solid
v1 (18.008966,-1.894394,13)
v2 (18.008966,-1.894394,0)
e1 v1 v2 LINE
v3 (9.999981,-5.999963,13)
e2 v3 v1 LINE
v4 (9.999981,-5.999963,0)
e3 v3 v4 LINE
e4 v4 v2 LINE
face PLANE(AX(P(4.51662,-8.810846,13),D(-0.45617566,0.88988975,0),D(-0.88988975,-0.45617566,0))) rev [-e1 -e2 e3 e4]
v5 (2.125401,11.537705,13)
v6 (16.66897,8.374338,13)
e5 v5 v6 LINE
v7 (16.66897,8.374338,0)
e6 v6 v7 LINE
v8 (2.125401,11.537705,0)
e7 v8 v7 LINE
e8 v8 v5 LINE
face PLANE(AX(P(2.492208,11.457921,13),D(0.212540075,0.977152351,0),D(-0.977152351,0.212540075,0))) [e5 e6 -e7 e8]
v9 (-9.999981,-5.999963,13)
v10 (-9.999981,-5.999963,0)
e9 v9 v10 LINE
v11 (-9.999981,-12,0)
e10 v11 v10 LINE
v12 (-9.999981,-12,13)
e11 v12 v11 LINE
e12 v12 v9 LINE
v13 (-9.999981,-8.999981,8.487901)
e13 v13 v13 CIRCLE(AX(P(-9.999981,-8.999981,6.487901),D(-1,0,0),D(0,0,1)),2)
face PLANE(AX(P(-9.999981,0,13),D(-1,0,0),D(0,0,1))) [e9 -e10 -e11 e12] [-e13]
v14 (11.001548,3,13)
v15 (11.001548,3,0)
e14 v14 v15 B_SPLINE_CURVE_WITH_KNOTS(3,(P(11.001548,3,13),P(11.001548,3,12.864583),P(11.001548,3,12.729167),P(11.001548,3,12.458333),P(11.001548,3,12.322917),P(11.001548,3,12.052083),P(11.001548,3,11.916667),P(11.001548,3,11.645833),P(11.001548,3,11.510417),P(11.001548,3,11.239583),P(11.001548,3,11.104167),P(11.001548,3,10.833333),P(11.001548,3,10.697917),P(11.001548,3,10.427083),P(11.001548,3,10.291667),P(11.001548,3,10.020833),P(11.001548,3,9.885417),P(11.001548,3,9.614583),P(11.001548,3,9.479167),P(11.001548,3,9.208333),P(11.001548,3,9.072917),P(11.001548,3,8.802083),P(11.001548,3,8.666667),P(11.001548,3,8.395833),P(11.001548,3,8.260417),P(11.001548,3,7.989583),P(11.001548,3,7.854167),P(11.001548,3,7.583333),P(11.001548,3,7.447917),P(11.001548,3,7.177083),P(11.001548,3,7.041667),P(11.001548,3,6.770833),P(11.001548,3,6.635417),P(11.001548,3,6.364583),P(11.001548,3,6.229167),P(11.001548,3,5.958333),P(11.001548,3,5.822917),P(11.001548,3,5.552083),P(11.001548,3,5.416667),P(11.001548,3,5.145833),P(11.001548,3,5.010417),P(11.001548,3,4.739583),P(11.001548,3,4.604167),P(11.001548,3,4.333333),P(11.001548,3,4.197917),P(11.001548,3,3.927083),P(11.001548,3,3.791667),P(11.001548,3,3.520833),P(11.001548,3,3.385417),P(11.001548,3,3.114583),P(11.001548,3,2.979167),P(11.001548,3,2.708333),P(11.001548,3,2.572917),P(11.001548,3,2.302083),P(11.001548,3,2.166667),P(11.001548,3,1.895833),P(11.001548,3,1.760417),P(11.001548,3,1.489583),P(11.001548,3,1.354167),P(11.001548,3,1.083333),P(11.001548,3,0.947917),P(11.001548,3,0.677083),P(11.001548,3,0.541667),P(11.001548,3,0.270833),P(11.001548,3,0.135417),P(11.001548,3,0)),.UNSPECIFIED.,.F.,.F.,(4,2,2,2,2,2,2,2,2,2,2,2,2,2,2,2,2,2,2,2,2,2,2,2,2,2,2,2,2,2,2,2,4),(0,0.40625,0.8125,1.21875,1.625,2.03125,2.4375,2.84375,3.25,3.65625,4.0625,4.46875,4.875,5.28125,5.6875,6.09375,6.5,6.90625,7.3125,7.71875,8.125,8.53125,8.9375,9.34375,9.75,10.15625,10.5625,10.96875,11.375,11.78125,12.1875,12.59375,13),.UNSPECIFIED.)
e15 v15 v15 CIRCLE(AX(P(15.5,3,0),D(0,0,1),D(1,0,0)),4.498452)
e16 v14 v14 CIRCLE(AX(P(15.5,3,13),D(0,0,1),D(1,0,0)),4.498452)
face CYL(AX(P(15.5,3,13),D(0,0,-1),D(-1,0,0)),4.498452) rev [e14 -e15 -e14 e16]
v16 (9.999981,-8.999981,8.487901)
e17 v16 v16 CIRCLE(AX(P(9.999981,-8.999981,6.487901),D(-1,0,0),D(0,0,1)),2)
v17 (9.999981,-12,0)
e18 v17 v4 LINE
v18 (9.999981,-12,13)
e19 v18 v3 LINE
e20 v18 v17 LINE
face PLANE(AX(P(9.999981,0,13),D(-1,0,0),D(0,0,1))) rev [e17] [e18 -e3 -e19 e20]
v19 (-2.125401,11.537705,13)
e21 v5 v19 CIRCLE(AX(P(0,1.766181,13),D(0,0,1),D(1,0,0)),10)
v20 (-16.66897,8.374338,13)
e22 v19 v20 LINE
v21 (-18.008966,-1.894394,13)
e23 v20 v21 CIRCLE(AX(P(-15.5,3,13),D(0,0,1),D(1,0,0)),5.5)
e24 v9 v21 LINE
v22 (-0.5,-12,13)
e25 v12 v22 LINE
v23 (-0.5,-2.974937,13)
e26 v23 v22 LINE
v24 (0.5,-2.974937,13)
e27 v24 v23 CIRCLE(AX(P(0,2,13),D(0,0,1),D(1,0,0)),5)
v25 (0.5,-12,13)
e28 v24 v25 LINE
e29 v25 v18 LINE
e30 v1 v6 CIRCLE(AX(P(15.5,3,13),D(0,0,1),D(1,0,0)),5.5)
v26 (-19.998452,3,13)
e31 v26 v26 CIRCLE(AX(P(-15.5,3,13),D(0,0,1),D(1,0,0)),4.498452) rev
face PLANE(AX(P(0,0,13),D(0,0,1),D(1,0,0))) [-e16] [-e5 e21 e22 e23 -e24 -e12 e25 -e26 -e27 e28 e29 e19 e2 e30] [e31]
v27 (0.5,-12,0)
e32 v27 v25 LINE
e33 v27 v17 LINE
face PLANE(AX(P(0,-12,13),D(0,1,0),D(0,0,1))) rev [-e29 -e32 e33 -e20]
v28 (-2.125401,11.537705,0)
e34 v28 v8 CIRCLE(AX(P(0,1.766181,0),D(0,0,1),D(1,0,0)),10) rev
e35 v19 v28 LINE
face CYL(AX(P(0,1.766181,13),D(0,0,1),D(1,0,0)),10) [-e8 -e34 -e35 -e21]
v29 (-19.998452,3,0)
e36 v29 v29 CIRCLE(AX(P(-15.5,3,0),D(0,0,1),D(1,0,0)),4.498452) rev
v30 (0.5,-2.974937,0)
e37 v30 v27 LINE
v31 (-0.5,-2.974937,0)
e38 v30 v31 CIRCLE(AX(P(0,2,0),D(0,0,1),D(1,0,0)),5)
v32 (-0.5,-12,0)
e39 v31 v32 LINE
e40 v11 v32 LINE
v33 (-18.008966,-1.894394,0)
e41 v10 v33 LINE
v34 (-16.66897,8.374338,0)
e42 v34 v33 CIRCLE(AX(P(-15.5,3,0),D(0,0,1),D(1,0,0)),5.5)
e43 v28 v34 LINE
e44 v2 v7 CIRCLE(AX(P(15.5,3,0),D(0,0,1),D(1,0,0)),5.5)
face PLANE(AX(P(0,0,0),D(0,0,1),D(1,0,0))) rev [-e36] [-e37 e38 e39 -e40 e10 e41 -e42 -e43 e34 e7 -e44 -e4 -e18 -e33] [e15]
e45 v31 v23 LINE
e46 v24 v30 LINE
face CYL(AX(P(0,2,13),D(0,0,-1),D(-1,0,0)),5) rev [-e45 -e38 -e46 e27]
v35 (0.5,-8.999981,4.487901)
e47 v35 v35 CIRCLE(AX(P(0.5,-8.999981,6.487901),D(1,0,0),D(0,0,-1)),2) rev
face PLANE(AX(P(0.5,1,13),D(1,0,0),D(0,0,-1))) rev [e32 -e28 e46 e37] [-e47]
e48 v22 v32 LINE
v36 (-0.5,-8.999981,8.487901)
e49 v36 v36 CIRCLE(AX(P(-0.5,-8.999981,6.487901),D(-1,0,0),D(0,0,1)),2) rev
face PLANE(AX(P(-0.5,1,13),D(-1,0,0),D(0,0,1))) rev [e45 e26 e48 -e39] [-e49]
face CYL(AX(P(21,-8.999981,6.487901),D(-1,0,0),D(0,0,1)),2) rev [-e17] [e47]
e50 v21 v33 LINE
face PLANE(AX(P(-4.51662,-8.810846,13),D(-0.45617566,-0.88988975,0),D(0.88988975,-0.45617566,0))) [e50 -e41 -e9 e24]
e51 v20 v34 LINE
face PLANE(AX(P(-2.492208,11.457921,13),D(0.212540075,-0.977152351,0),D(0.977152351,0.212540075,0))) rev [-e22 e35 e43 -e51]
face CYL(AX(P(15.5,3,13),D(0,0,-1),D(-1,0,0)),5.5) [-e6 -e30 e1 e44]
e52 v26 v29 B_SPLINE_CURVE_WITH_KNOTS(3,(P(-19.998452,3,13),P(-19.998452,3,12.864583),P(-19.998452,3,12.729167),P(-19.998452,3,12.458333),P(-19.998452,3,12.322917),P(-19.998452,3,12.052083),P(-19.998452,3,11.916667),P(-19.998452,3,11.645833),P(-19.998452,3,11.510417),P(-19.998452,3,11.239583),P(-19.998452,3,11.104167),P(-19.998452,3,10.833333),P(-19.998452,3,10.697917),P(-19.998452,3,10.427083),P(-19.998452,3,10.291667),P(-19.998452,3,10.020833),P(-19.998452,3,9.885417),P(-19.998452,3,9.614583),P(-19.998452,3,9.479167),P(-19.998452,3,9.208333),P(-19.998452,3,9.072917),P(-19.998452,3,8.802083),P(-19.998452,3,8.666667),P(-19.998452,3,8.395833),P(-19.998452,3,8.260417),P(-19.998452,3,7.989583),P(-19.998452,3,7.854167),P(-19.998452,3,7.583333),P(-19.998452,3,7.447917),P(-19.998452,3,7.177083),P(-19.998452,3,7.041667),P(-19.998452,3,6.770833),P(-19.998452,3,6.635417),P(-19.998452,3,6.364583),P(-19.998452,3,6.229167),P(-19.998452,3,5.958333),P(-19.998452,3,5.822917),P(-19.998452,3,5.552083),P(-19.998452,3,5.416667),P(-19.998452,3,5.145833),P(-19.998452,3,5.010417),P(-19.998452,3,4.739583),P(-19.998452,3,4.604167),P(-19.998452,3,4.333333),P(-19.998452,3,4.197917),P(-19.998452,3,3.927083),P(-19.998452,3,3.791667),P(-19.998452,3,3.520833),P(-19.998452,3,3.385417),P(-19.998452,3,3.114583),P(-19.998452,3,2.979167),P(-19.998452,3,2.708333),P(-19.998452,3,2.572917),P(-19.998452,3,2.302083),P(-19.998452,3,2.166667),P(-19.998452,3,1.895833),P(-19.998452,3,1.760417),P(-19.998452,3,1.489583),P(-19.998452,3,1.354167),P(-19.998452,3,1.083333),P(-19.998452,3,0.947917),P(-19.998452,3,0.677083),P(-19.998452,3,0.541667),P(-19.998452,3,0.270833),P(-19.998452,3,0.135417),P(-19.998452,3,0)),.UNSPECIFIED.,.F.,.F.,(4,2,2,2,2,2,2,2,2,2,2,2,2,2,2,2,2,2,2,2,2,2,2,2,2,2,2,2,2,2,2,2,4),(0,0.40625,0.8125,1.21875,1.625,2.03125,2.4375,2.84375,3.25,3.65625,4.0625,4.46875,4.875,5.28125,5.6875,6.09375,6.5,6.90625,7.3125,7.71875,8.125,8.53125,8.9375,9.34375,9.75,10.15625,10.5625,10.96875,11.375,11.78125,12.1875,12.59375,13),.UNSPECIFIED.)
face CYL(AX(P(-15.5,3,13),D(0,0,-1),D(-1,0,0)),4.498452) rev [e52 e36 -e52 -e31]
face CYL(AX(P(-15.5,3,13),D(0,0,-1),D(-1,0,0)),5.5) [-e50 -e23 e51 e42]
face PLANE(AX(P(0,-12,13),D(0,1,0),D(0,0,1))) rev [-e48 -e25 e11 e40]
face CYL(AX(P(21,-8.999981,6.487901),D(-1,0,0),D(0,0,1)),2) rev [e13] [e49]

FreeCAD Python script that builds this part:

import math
import FreeCAD as App
import Part
import Sketcher
Q = App.Units.Quantity


def edges_at(feature, points):
    """Names of the edges that pass closest to the given points."""
    edges = feature.Shape.Edges
    near = lambda p: min(range(len(edges)), key=lambda i: edges[i].distToShape(Part.Vertex(*p))[0])
    return sorted({f"Edge{near(p) + 1}" for p in points})


def add_polygon(sketch, points):
    """Adds a closed chain of lines whose ends are joined by coincident constraints."""
    first, n = sketch.GeometryCount, len(points)
    for a, b in zip(points, points[1:] + points[:1]):
        sketch.addGeometry(Part.LineSegment(App.Vector(*a, 0), App.Vector(*b, 0)), False)
    for i in range(n):
        sketch.addConstraint(Sketcher.Constraint("Coincident", first + i, 2, first + (i + 1) % n, 1))

doc = App.newDocument("Part")
body = doc.addObject("PartDesign::Body", "Body")

# Sketch on XY plane
sketch1 = body.newObject("Sketcher::SketchObject", "Sketch")
sketch1.AttachmentSupport = (doc.getObject("XY_Plane"), [""])
sketch1.MapMode = "FlatFace"
sketch1.addGeometry([
    Part.LineSegment(App.Vector(10, -6, 0), App.Vector(18, -1.9, 0)),  # 0
    Part.ArcOfCircle(Part.Circle(App.Vector(15.5, 3, 0), App.Vector(0, 0, 1), 5.5), math.radians(-62.86), math.radians(-45)),  # 1
    Part.ArcOfCircle(Part.Circle(App.Vector(15.5, 3, 0), App.Vector(0, 0, 1), 5.5), math.radians(-45), math.radians(0)),  # 2
    Part.ArcOfCircle(Part.Circle(App.Vector(15.5, 3, 0), App.Vector(0, 0, 1), 5.5), math.radians(0), math.radians(45)),  # 3
    Part.ArcOfCircle(Part.Circle(App.Vector(15.5, 3, 0), App.Vector(0, 0, 1), 5.5), math.radians(45), math.radians(78)),  # 4
    Part.LineSegment(App.Vector(16.7, 8.4, 0), App.Vector(0, 12, 0)),  # 5
    Part.LineSegment(App.Vector(0, 12, 0), App.Vector(-16.7, 8.4, 0)),  # 6
    Part.ArcOfCircle(Part.Circle(App.Vector(-15.5, 3, 0), App.Vector(0, 0, 1), 5.5), math.radians(102), math.radians(135)),  # 7
    Part.ArcOfCircle(Part.Circle(App.Vector(-15.5, 3, 0), App.Vector(0, 0, 1), 5.5), math.radians(135), math.radians(180)),  # 8
    Part.ArcOfCircle(Part.Circle(App.Vector(-15.5, 3, 0), App.Vector(0, 0, 1), 5.5), math.radians(180), math.radians(225)),  # 9
    Part.ArcOfCircle(Part.Circle(App.Vector(-15.5, 3, 0), App.Vector(0, 0, 1), 5.5), math.radians(-135), math.radians(-117.14)),  # 10
    Part.LineSegment(App.Vector(-18, -1.9, 0), App.Vector(-10, -6, 0)),  # 11
    Part.LineSegment(App.Vector(-10, -6, 0), App.Vector(-10, -12, 0)),  # 12
    Part.LineSegment(App.Vector(-10, -12, 0), App.Vector(10, -12, 0)),  # 13
    Part.LineSegment(App.Vector(10, -12, 0), App.Vector(10, -6, 0)),  # 14
    Part.Circle(App.Vector(0, 2, 0), App.Vector(0, 0, 1), 5),  # 15
    Part.ArcOfCircle(Part.Circle(App.Vector(15.5, 3, 0), App.Vector(0, 0, 1), 4.5), math.radians(45), math.radians(315)),  # 16
    Part.ArcOfCircle(Part.Circle(App.Vector(15.5, 3, 0), App.Vector(0, 0, 1), 4.5), math.radians(0), math.radians(45)),  # 17
    Part.ArcOfCircle(Part.Circle(App.Vector(15.5, 3, 0), App.Vector(0, 0, 1), 4.5), math.radians(-45), math.radians(0)),  # 18
    Part.ArcOfCircle(Part.Circle(App.Vector(-15.5, 3, 0), App.Vector(0, 0, 1), 4.5), math.radians(0), math.radians(135)),  # 19
    Part.ArcOfCircle(Part.Circle(App.Vector(-15.5, 3, 0), App.Vector(0, 0, 1), 4.5), math.radians(-135), math.radians(0)),  # 20
    Part.ArcOfCircle(Part.Circle(App.Vector(-15.5, 3, 0), App.Vector(0, 0, 1), 4.5), math.radians(135), math.radians(225)),  # 21
], False)
sketch1.addConstraint([
    Sketcher.Constraint("Tangent", 0, 2, 1, 1),
    Sketcher.Constraint("Tangent", 1, 2, 2, 1),
    Sketcher.Constraint("Tangent", 2, 2, 3, 1),
    Sketcher.Constraint("Tangent", 3, 2, 4, 1),
    Sketcher.Constraint("Tangent", 4, 2, 5, 1),
    Sketcher.Constraint("Coincident", 5, 2, 6, 1),
    Sketcher.Constraint("Tangent", 6, 2, 7, 1),
    Sketcher.Constraint("Tangent", 7, 2, 8, 1),
    Sketcher.Constraint("Tangent", 8, 2, 9, 1),
    Sketcher.Constraint("Tangent", 9, 2, 10, 1),
    Sketcher.Constraint("Tangent", 10, 2, 11, 1),
    Sketcher.Constraint("Coincident", 11, 2, 12, 1),
    Sketcher.Constraint("Coincident", 12, 2, 13, 1),
    Sketcher.Constraint("Coincident", 13, 2, 14, 1),
    Sketcher.Constraint("Coincident", 14, 2, 0, 1),
    Sketcher.Constraint("Tangent", 16, 1, 17, 2),
    Sketcher.Constraint("Tangent", 17, 1, 18, 2),
    Sketcher.Constraint("Tangent", 18, 1, 16, 2),
    Sketcher.Constraint("Tangent", 19, 1, 20, 2),
    Sketcher.Constraint("Tangent", 20, 1, 21, 2),
    Sketcher.Constraint("Tangent", 21, 1, 19, 2),
    Sketcher.Constraint("Vertical", 12),
    Sketcher.Constraint("Horizontal", 13),
    Sketcher.Constraint("Vertical", 14),
    Sketcher.Constraint("Coincident", 3, 3, 1, 3),
    Sketcher.Constraint("Coincident", 9, 3, 7, 3),
    Sketcher.Constraint("Coincident", 16, 3, 1, 3),
    Sketcher.Constraint("Coincident", 19, 3, 7, 3),
    Sketcher.Constraint("Equal", 3, 4),
    Sketcher.Constraint("Equal", 4, 7),
    Sketcher.Constraint("Equal", 9, 10),
    Sketcher.Constraint("Equal", 18, 19),
    Sketcher.Constraint("Symmetric", 1, 3, 7, 3, -2),
    Sketcher.Constraint("Symmetric", 11, 2, 14, 2, -2),
    Sketcher.Constraint("PointOnObject", 15, 3, -2),
    Sketcher.Constraint("PointOnObject", 5, 2, -2),
    Sketcher.Constraint("Horizontal", 21, 3, 2, 2),
    Sketcher.Constraint("Horizontal", 3, 2, 7, 2),
    Sketcher.Constraint("Horizontal", 2, 2, 8, 2),
    Sketcher.Constraint("Horizontal", 1, 2, 9, 2),
    Sketcher.Constraint("Horizontal", 8, 2, 17, 1),
    Sketcher.Constraint("Horizontal", 17, 1, 19, 1),
    Sketcher.Constraint("Horizontal", 18, 1, 20, 1),
    Sketcher.Constraint("Horizontal", 16, 1, 21, 1),
    Sketcher.Constraint("Vertical", 1, 2, 3, 2),
    Sketcher.Constraint("Vertical", 16, 1, 18, 1),
    Sketcher.Constraint("Diameter", 15, Q("10 mm")),
    Sketcher.Constraint("Radius", 1, Q("5.5 mm")),
    Sketcher.Constraint("DistanceY", -1, 1, 1, 3, Q("3 mm")),
    Sketcher.Constraint("DistanceY", -1, 1, 15, 3, Q("2 mm")),
    Sketcher.Constraint("DistanceX", -1, 1, 2, 2, Q("21 mm")),
    Sketcher.Constraint("DistanceY", -1, 1, 5, 2, Q("12 mm")),
    Sketcher.Constraint("DistanceY", 12, 2, -1, 1, Q("12 mm")),
    Sketcher.Constraint("Radius", 16, Q("4.498452 mm")),
    Sketcher.Constraint("DistanceX", 16, 1, 3, 2, Q("0.708201 mm")),
    Sketcher.Constraint("DistanceX", 13, 1, 13, 2, Q("19.999962 mm")),
    Sketcher.Constraint("DistanceY", 12, 2, 12, 1, Q("6.000037 mm")),
    Sketcher.Constraint("DistanceX", 0, 2, 1, 2, Q("1.380121 mm")),
])
pad1 = body.newObject("PartDesign::Pad", "Pad")
pad1.Profile = sketch1
pad1.Length = 13

# Sketch on YZ plane
sketch2 = body.newObject("Sketcher::SketchObject", "Sketch001")
sketch2.AttachmentSupport = (doc.getObject("YZ_Plane"), [""])
sketch2.MapMode = "FlatFace"
sketch2.AttachmentOffset = App.Placement(App.Vector(0, 0, -9.999981), App.Rotation())
sketch2.addGeometry(Part.Circle(App.Vector(-9, 6.5, 0), App.Vector(0, 0, 1), 2), False)
sketch2.addConstraint([
    Sketcher.Constraint("Diameter", 0, Q("4 mm")),
    Sketcher.Constraint("DistanceY", -1, 1, 0, 3, Q("6.487901 mm")),
    Sketcher.Constraint("DistanceX", 0, 3, -1, 1, Q("8.999981 mm")),
])
pocket1 = body.newObject("PartDesign::Pocket", "Pocket")
pocket1.Profile = sketch2
pocket1.Type = "ThroughAll"
pocket1.Reversed = True

# Sketch on XZ plane
sketch3 = body.newObject("Sketcher::SketchObject", "Sketch002")
sketch3.AttachmentSupport = (doc.getObject("XZ_Plane"), [""])
sketch3.MapMode = "FlatFace"
sketch3.AttachmentOffset = App.Placement(App.Vector(0, 0, 12), App.Rotation())
add_polygon(sketch3, [(-0.5, 13), (-0.5, 0), (0.5, 0), (0.5, 13)])  # lines 0-3
sketch3.addConstraint([
    Sketcher.Constraint("Vertical", 0),
    Sketcher.Constraint("Horizontal", 1),
    Sketcher.Constraint("Vertical", 2),
    Sketcher.Constraint("Horizontal", 3),
    Sketcher.Constraint("Symmetric", 0, 2, 1, 2, -1, 1),
    Sketcher.Constraint("DistanceX", 1, 1, 1, 2, Q("1 mm")),
    Sketcher.Constraint("DistanceY", 0, 2, 0, 1, Q("13 mm")),
])
pocket2 = body.newObject("PartDesign::Pocket", "Pocket001")
pocket2.Profile = sketch3
pocket2.Length = 13
doc.recompute()

fillet = body.newObject("PartDesign::Fillet", "Fillet")
fillet.Base = (pocket2, edges_at(pocket2, [(0, 12, 6.5)]))
fillet.Radius = 10

doc.recompute()
